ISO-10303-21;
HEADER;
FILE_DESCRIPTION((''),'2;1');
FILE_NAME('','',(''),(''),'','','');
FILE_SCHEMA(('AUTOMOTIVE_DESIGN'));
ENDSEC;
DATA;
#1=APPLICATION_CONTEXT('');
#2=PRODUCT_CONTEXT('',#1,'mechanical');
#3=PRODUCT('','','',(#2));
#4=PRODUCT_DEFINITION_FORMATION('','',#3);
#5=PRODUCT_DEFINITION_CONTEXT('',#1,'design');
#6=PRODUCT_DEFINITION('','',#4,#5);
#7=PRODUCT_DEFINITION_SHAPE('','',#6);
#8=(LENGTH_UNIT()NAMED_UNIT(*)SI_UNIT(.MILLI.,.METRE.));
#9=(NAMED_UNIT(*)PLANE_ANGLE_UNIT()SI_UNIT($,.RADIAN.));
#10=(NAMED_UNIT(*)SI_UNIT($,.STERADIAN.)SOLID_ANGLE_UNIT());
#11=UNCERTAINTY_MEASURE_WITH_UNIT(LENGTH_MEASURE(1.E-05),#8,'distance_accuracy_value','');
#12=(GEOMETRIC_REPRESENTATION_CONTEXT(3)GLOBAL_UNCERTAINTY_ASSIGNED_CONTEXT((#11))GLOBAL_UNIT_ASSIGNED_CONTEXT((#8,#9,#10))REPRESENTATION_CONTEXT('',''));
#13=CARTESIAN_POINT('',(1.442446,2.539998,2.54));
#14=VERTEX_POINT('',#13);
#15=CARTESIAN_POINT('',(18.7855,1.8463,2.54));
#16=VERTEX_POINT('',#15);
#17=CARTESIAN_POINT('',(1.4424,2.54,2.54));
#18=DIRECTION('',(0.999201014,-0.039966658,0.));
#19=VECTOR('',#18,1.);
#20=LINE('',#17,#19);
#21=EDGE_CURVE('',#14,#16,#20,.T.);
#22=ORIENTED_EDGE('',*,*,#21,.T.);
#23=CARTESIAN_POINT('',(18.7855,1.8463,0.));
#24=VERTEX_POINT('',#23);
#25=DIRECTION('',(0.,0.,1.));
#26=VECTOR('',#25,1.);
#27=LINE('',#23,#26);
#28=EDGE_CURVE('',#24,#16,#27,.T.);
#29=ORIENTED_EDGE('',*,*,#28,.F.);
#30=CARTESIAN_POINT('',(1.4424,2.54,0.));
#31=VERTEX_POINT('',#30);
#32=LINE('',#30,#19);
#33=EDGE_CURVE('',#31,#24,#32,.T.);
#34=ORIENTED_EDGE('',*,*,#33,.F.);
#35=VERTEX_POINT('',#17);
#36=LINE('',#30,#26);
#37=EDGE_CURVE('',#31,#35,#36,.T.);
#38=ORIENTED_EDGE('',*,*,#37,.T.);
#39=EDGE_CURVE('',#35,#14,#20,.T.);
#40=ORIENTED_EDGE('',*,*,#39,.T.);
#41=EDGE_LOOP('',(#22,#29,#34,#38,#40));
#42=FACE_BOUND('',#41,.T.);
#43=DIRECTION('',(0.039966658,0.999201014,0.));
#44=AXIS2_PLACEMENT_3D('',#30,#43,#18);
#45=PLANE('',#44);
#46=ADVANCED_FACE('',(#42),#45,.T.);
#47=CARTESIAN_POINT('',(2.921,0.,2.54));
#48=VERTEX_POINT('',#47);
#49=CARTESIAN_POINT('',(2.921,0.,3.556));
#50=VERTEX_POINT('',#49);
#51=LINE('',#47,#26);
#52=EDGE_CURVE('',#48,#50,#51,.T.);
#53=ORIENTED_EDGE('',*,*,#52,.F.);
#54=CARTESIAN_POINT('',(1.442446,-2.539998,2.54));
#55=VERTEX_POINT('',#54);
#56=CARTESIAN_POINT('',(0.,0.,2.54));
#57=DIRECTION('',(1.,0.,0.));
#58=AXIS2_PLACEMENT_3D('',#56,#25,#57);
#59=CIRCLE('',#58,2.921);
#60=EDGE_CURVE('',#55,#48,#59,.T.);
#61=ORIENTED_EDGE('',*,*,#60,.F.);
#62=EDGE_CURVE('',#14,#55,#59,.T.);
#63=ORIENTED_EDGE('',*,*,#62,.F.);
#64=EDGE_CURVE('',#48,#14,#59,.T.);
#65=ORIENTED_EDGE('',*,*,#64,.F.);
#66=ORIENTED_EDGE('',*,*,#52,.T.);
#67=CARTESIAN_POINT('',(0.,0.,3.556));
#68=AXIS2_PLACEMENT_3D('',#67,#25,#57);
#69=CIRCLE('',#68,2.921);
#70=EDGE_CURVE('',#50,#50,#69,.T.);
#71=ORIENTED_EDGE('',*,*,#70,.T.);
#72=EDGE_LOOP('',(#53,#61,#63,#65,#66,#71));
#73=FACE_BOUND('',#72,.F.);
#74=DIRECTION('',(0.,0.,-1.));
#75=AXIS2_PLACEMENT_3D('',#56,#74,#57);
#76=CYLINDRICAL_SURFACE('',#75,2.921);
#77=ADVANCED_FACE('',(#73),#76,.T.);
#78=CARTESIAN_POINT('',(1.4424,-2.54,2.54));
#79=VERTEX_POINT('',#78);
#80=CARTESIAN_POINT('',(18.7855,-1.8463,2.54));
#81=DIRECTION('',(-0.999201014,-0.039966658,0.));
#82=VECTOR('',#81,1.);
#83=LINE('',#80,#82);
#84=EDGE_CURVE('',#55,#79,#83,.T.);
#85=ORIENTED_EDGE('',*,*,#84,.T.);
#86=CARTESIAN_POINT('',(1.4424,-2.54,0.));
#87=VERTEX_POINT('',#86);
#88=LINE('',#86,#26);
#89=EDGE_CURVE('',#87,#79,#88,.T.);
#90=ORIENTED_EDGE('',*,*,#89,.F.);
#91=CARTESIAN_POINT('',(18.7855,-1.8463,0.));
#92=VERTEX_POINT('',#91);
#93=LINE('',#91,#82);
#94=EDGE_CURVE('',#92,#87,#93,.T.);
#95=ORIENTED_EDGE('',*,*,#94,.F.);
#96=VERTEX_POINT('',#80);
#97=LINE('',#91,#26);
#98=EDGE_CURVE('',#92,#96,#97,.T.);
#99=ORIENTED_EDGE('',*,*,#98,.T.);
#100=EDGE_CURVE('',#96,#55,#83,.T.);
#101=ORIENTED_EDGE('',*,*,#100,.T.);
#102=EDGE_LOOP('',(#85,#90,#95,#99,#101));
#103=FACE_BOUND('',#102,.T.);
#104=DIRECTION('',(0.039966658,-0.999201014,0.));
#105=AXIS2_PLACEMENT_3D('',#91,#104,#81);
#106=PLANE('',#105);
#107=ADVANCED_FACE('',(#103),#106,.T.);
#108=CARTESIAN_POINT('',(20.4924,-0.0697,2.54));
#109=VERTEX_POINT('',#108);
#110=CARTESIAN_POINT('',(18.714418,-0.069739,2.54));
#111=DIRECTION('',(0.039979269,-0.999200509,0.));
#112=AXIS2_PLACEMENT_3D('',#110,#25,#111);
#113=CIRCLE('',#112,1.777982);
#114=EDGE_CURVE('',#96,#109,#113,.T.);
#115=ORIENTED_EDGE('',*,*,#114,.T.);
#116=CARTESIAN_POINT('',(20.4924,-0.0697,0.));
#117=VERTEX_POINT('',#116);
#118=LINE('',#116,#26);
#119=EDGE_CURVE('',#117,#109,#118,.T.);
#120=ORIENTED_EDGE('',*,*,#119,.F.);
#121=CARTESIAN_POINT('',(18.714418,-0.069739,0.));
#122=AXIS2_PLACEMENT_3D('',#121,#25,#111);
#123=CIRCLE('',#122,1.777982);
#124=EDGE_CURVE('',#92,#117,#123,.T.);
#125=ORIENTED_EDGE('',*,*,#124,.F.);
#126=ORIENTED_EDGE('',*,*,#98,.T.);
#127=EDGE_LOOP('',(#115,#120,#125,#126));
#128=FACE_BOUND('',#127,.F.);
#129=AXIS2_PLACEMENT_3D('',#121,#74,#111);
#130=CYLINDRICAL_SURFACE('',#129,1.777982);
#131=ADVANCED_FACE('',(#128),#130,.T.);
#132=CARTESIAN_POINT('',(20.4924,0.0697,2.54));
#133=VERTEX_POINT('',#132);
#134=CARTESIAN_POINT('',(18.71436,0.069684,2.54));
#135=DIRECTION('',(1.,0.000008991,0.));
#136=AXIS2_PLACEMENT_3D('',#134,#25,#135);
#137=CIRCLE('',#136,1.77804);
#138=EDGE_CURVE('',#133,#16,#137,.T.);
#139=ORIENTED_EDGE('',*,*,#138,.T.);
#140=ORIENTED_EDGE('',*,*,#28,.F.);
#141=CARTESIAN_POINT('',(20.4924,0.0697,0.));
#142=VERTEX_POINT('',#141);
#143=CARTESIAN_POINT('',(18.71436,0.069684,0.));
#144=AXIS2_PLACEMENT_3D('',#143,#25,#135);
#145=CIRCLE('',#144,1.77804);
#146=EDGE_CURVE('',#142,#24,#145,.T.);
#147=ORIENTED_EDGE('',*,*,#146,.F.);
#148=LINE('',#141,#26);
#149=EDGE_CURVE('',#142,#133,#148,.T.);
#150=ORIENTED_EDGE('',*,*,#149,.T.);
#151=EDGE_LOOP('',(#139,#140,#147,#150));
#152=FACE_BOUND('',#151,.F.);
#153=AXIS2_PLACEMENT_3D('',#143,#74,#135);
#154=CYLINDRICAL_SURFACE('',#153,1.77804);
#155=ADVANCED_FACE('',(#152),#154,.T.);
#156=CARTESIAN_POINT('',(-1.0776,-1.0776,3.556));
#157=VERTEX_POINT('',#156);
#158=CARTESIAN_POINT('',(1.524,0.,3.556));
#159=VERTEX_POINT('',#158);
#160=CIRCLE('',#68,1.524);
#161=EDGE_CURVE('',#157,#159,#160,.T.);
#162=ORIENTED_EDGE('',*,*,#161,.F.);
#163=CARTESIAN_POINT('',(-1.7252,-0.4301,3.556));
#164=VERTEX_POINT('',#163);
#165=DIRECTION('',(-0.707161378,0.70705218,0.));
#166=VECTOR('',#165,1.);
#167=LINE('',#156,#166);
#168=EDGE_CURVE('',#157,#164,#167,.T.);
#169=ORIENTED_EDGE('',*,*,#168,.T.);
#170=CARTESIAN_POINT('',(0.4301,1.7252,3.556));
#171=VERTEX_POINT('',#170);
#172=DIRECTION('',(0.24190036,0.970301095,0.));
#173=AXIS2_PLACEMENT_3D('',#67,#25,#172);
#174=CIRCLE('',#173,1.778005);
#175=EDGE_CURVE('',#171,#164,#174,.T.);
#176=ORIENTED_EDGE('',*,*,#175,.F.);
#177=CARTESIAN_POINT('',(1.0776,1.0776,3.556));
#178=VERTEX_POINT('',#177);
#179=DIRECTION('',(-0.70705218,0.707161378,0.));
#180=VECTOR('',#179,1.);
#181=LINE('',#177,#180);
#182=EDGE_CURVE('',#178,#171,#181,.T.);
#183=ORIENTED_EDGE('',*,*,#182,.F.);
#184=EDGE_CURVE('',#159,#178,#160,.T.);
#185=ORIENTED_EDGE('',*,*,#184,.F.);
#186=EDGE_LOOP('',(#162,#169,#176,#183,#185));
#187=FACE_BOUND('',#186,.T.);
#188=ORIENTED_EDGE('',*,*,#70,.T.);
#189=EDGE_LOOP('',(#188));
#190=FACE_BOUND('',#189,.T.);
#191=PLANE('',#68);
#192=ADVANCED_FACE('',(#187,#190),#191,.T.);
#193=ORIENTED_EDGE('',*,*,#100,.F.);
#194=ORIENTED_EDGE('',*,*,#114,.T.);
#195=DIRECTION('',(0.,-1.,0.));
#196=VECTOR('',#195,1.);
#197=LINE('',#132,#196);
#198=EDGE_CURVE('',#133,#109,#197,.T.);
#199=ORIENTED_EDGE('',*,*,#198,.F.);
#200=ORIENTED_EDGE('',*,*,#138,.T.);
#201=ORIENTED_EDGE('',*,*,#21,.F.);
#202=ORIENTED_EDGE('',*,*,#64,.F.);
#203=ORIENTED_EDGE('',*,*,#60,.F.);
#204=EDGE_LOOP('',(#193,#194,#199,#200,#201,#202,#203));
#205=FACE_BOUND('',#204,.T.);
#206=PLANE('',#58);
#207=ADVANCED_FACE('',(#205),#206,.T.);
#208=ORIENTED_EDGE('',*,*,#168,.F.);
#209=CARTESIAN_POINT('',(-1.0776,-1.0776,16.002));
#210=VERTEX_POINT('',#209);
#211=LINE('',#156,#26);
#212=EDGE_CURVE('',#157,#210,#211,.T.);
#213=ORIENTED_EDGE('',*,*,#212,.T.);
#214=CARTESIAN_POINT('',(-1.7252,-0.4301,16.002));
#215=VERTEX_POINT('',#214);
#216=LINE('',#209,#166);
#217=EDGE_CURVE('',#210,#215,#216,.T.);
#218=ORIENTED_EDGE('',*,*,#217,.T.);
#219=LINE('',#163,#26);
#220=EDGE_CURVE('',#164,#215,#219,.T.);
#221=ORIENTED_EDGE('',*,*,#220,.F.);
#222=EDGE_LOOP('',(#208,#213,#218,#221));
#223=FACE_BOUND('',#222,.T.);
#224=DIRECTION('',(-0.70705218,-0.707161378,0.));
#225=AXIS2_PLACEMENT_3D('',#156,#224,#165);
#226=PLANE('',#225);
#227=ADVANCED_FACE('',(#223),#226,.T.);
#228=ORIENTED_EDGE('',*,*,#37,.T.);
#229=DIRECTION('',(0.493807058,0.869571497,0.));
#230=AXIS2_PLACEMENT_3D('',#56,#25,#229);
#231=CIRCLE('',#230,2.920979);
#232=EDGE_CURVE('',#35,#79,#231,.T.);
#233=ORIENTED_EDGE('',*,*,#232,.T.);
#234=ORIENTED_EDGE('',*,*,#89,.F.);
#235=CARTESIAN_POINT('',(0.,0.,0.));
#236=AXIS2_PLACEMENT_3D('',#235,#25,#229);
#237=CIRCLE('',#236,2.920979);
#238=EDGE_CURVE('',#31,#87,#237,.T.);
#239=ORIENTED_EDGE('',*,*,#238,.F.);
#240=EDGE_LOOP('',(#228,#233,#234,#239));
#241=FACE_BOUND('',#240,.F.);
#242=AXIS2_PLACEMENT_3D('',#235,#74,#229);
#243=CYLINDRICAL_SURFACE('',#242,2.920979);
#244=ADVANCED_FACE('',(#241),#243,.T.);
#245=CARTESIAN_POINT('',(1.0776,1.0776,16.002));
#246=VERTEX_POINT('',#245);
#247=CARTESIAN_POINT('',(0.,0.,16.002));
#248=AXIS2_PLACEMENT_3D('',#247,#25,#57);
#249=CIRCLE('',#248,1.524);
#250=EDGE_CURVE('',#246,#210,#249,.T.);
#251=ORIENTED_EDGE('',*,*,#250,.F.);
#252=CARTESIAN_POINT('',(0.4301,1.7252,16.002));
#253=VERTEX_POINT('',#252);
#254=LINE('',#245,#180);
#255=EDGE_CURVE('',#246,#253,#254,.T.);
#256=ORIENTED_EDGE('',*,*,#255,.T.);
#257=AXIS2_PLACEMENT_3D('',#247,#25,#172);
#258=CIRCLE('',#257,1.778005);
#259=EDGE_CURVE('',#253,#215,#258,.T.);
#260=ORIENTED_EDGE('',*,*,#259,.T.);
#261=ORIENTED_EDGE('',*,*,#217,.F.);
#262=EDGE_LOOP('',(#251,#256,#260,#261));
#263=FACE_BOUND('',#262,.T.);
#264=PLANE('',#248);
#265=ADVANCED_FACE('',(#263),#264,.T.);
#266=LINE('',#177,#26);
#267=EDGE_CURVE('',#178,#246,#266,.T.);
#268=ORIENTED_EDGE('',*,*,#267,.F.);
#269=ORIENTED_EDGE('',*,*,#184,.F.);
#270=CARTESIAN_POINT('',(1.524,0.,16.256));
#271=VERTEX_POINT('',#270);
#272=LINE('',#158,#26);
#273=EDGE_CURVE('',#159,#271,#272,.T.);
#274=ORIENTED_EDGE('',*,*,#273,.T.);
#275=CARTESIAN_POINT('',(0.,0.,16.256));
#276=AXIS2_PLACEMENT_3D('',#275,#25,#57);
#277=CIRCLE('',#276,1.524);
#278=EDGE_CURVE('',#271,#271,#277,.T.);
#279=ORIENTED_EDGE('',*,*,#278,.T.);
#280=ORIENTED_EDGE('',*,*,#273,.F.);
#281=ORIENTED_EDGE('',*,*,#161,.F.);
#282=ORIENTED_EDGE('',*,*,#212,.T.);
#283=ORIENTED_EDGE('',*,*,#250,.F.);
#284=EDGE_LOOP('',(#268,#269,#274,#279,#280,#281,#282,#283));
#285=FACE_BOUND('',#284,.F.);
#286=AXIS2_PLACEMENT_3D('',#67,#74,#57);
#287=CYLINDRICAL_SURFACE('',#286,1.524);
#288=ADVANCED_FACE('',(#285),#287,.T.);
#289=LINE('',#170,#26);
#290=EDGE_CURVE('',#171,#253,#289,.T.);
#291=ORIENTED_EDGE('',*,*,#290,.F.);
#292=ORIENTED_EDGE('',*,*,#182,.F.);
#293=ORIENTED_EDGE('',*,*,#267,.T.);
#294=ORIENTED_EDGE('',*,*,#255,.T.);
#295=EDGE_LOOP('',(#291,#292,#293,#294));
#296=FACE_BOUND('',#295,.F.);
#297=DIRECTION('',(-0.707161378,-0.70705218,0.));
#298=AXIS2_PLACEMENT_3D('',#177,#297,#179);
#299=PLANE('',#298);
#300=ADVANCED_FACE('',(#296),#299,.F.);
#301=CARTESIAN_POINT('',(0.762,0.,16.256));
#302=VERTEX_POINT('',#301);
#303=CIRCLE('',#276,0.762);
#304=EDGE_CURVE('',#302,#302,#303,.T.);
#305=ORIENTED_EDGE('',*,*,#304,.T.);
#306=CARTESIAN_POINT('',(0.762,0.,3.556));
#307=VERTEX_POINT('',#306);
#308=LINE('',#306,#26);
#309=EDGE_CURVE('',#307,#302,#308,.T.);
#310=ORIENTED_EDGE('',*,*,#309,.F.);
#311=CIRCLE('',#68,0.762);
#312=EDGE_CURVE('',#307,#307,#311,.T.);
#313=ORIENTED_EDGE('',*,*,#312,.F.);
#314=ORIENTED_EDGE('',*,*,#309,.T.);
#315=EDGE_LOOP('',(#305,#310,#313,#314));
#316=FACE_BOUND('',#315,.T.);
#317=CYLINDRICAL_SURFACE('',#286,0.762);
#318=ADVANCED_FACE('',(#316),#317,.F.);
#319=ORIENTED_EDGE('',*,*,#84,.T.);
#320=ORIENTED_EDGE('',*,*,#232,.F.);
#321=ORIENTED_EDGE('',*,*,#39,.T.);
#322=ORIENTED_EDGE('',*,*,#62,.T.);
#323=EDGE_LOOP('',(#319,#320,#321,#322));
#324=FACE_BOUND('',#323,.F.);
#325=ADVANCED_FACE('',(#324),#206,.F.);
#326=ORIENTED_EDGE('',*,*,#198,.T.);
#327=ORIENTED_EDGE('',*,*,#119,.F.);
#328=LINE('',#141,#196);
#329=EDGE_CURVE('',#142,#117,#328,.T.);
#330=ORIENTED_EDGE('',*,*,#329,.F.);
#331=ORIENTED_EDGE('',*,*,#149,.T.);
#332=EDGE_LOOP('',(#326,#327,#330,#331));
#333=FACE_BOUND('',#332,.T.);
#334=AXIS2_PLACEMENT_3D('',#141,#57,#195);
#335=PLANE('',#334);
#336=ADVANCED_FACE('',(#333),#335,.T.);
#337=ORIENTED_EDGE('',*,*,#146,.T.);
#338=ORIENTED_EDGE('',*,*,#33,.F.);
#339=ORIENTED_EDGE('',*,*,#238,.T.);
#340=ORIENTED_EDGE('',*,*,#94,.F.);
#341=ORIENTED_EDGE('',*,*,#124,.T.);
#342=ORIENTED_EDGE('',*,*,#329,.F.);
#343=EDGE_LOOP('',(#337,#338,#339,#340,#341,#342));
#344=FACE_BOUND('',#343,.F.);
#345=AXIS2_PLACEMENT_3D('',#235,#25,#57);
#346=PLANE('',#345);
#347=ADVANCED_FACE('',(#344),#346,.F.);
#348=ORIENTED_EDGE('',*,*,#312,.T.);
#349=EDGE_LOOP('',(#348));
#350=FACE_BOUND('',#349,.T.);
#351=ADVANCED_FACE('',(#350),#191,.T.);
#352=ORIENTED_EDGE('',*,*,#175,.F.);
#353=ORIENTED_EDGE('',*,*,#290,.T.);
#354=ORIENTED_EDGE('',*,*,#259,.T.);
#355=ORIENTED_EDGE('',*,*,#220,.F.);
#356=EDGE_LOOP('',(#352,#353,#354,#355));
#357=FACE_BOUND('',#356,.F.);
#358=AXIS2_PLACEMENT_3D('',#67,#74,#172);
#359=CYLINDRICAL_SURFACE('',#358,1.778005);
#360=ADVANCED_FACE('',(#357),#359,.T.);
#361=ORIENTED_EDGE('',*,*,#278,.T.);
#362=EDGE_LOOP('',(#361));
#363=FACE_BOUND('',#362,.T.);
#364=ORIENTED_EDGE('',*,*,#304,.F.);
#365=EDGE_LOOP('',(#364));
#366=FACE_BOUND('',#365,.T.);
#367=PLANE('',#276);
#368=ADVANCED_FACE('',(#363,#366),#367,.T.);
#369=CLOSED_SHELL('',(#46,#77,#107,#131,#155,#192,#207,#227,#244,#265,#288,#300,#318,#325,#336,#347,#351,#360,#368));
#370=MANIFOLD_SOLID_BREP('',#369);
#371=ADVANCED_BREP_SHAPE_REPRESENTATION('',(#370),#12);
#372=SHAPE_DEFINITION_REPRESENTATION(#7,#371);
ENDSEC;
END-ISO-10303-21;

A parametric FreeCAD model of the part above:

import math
import FreeCAD as App
import Part
import Sketcher

V = App.Vector
Q = App.Units.Quantity

doc = App.newDocument("Part")
body = doc.addObject("PartDesign::Body", "Body")

# Sketch on XY plane
sketch1 = body.newObject("Sketcher::SketchObject", "Sketch")
sketch1.AttachmentSupport = (doc.getObject("XY_Plane"), [""])
sketch1.MapMode = "FlatFace"
sketch1.addGeometry(Part.LineSegment(V(18.7855, 1.8463, 0), V(1.4424, 2.54, 0)), False)
sketch1.addGeometry(Part.ArcOfCircle(Part.Circle(V(0, 0, 0), V(0, 0, 1), 2.920979), math.radians(60.408883), math.radians(299.591117)), False)
sketch1.addGeometry(Part.LineSegment(V(1.4424, -2.54, 0), V(18.7855, -1.8463, 0)), False)
sketch1.addGeometry(Part.ArcOfCircle(Part.Circle(V(18.7144, -0.0697, 0), V(0, 0, 1), 1.778022), math.radians(-87.708231), math.radians(0)), False)
sketch1.addGeometry(Part.LineSegment(V(20.4924, -0.0697, 0), V(20.4924, 0.0697, 0)), False)
sketch1.addGeometry(Part.ArcOfCircle(Part.Circle(V(18.7144, 0.0697, 0), V(0, 0, 1), 1.778), math.radians(0), math.radians(87.708231)), False)
sketch1.addConstraint(Sketcher.Constraint("Coincident", 0, 2, 1, 1))
sketch1.addConstraint(Sketcher.Constraint("Coincident", 1, 2, 2, 1))
sketch1.addConstraint(Sketcher.Constraint("Tangent", 2, 2, 3, 1))
sketch1.addConstraint(Sketcher.Constraint("Tangent", 3, 2, 4, 1))
sketch1.addConstraint(Sketcher.Constraint("Tangent", 4, 2, 5, 1))
sketch1.addConstraint(Sketcher.Constraint("Tangent", 5, 2, 0, 1))
sketch1.addConstraint(Sketcher.Constraint("Vertical", 4))
sketch1.addConstraint(Sketcher.Constraint("Coincident", 1, 3, -1, 1))
sketch1.addConstraint(Sketcher.Constraint("Equal", 3, 5))
sketch1.addConstraint(Sketcher.Constraint("Symmetric", 2, 2, 5, 2, -1))
sketch1.addConstraint(Sketcher.Constraint("Radius", 3, Q("0.07 in")))
sketch1.addConstraint(Sketcher.Constraint("Radius", 1, Q("0.115 in")))
sketch1.addConstraint(Sketcher.Constraint("DistanceY", 1, 2, 0, 2, Q("0.2 in")))
sketch1.addConstraint(Sketcher.Constraint("DistanceX", 1, 2, 3, 2, Q("0.75 in")))
sketch1.addConstraint(Sketcher.Constraint("Angle", 0, Q("177.7095 deg")))
pad1 = body.newObject("PartDesign::Pad", "Pad")
pad1.Profile = sketch1
pad1.Length = Q("0.1 in")

# Sketch on XY plane
sketch2 = body.newObject("Sketcher::SketchObject", "Sketch001")
sketch2.AttachmentSupport = (doc.getObject("XY_Plane"), [""])
sketch2.MapMode = "FlatFace"
sketch2.AttachmentOffset = App.Placement(V(0, 0, 0.1 * 25.4), App.Rotation())
sketch2.addGeometry(Part.Circle(V(0, 0, 0), V(0, 0, 1), 2.921), False)
sketch2.addConstraint(Sketcher.Constraint("Coincident", 0, 3, -1, 1))
sketch2.addConstraint(Sketcher.Constraint("Diameter", 0, Q("0.23 in")))
pad2 = body.newObject("PartDesign::Pad", "Pad001")
pad2.Profile = sketch2
pad2.Length = Q("0.04 in")

# Sketch on XY plane
sketch3 = body.newObject("Sketcher::SketchObject", "Sketch002")
sketch3.AttachmentSupport = (doc.getObject("XY_Plane"), [""])
sketch3.MapMode = "FlatFace"
sketch3.AttachmentOffset = App.Placement(V(0, 0, 0.14 * 25.4), App.Rotation())
sketch3.addGeometry(Part.Circle(V(0, 0, 0), V(0, 0, 1), 1.524), False)
sketch3.addGeometry(Part.Circle(V(0, 0, 0), V(0, 0, 1), 0.762), False)
sketch3.addConstraint(Sketcher.Constraint("Coincident", 0, 3, -1, 1))
sketch3.addConstraint(Sketcher.Constraint("Coincident", 1, 3, -1, 1))
sketch3.addConstraint(Sketcher.Constraint("Diameter", 0, Q("0.12 in")))
sketch3.addConstraint(Sketcher.Constraint("Diameter", 1, Q("0.06 in")))
pad3 = body.newObject("PartDesign::Pad", "Pad002")
pad3.Profile = sketch3
pad3.Length = Q("0.5 in")

# Sketch on XY plane
sketch4 = body.newObject("Sketcher::SketchObject", "Sketch003")
sketch4.AttachmentSupport = (doc.getObject("XY_Plane"), [""])
sketch4.MapMode = "FlatFace"
sketch4.AttachmentOffset = App.Placement(V(0, 0, 0.14 * 25.4), App.Rotation())
sketch4.addGeometry(Part.ArcOfCircle(Part.Circle(V(0, 0, 0), V(0, 0, 1), 1.524), math.radians(45), math.radians(225)), False)
sketch4.addGeometry(Part.LineSegment(V(1.0776, 1.0776, 0), V(0.4301, 1.7252, 0)), False)
sketch4.addGeometry(Part.ArcOfCircle(Part.Circle(V(0, 0, 0), V(0, 0, 1), 1.778005), math.radians(76.001272), math.radians(193.998728)), False)
sketch4.addGeometry(Part.LineSegment(V(-1.7252, -0.4301, 0), V(-1.0776, -1.0776, 0)), False)
sketch4.addConstraint(Sketcher.Constraint("Tangent", 0, 1, 1, 1))
sketch4.addConstraint(Sketcher.Constraint("Coincident", 1, 2, 2, 1))
sketch4.addConstraint(Sketcher.Constraint("Coincident", 2, 2, 3, 1))
sketch4.addConstraint(Sketcher.Constraint("Tangent", 3, 2, 0, 2))
sketch4.addConstraint(Sketcher.Constraint("Coincident", 0, 3, -1, 1))
sketch4.addConstraint(Sketcher.Constraint("Coincident", 2, 3, -1, 1))
sketch4.addConstraint(Sketcher.Constraint("Parallel", 1, 3))
sketch4.addConstraint(Sketcher.Constraint("Radius", 0, Q("0.06 in")))
sketch4.addConstraint(Sketcher.Constraint("Radius", 2, Q("0.07 in")))
sketch4.addConstraint(Sketcher.Constraint("DistanceX", 1, 2, 0, 1, Q("0.0255 in")))
pad4 = body.newObject("PartDesign::Pad", "Pad003")
pad4.Profile = sketch4
pad4.Length = Q("0.49 in")

doc.recompute()
